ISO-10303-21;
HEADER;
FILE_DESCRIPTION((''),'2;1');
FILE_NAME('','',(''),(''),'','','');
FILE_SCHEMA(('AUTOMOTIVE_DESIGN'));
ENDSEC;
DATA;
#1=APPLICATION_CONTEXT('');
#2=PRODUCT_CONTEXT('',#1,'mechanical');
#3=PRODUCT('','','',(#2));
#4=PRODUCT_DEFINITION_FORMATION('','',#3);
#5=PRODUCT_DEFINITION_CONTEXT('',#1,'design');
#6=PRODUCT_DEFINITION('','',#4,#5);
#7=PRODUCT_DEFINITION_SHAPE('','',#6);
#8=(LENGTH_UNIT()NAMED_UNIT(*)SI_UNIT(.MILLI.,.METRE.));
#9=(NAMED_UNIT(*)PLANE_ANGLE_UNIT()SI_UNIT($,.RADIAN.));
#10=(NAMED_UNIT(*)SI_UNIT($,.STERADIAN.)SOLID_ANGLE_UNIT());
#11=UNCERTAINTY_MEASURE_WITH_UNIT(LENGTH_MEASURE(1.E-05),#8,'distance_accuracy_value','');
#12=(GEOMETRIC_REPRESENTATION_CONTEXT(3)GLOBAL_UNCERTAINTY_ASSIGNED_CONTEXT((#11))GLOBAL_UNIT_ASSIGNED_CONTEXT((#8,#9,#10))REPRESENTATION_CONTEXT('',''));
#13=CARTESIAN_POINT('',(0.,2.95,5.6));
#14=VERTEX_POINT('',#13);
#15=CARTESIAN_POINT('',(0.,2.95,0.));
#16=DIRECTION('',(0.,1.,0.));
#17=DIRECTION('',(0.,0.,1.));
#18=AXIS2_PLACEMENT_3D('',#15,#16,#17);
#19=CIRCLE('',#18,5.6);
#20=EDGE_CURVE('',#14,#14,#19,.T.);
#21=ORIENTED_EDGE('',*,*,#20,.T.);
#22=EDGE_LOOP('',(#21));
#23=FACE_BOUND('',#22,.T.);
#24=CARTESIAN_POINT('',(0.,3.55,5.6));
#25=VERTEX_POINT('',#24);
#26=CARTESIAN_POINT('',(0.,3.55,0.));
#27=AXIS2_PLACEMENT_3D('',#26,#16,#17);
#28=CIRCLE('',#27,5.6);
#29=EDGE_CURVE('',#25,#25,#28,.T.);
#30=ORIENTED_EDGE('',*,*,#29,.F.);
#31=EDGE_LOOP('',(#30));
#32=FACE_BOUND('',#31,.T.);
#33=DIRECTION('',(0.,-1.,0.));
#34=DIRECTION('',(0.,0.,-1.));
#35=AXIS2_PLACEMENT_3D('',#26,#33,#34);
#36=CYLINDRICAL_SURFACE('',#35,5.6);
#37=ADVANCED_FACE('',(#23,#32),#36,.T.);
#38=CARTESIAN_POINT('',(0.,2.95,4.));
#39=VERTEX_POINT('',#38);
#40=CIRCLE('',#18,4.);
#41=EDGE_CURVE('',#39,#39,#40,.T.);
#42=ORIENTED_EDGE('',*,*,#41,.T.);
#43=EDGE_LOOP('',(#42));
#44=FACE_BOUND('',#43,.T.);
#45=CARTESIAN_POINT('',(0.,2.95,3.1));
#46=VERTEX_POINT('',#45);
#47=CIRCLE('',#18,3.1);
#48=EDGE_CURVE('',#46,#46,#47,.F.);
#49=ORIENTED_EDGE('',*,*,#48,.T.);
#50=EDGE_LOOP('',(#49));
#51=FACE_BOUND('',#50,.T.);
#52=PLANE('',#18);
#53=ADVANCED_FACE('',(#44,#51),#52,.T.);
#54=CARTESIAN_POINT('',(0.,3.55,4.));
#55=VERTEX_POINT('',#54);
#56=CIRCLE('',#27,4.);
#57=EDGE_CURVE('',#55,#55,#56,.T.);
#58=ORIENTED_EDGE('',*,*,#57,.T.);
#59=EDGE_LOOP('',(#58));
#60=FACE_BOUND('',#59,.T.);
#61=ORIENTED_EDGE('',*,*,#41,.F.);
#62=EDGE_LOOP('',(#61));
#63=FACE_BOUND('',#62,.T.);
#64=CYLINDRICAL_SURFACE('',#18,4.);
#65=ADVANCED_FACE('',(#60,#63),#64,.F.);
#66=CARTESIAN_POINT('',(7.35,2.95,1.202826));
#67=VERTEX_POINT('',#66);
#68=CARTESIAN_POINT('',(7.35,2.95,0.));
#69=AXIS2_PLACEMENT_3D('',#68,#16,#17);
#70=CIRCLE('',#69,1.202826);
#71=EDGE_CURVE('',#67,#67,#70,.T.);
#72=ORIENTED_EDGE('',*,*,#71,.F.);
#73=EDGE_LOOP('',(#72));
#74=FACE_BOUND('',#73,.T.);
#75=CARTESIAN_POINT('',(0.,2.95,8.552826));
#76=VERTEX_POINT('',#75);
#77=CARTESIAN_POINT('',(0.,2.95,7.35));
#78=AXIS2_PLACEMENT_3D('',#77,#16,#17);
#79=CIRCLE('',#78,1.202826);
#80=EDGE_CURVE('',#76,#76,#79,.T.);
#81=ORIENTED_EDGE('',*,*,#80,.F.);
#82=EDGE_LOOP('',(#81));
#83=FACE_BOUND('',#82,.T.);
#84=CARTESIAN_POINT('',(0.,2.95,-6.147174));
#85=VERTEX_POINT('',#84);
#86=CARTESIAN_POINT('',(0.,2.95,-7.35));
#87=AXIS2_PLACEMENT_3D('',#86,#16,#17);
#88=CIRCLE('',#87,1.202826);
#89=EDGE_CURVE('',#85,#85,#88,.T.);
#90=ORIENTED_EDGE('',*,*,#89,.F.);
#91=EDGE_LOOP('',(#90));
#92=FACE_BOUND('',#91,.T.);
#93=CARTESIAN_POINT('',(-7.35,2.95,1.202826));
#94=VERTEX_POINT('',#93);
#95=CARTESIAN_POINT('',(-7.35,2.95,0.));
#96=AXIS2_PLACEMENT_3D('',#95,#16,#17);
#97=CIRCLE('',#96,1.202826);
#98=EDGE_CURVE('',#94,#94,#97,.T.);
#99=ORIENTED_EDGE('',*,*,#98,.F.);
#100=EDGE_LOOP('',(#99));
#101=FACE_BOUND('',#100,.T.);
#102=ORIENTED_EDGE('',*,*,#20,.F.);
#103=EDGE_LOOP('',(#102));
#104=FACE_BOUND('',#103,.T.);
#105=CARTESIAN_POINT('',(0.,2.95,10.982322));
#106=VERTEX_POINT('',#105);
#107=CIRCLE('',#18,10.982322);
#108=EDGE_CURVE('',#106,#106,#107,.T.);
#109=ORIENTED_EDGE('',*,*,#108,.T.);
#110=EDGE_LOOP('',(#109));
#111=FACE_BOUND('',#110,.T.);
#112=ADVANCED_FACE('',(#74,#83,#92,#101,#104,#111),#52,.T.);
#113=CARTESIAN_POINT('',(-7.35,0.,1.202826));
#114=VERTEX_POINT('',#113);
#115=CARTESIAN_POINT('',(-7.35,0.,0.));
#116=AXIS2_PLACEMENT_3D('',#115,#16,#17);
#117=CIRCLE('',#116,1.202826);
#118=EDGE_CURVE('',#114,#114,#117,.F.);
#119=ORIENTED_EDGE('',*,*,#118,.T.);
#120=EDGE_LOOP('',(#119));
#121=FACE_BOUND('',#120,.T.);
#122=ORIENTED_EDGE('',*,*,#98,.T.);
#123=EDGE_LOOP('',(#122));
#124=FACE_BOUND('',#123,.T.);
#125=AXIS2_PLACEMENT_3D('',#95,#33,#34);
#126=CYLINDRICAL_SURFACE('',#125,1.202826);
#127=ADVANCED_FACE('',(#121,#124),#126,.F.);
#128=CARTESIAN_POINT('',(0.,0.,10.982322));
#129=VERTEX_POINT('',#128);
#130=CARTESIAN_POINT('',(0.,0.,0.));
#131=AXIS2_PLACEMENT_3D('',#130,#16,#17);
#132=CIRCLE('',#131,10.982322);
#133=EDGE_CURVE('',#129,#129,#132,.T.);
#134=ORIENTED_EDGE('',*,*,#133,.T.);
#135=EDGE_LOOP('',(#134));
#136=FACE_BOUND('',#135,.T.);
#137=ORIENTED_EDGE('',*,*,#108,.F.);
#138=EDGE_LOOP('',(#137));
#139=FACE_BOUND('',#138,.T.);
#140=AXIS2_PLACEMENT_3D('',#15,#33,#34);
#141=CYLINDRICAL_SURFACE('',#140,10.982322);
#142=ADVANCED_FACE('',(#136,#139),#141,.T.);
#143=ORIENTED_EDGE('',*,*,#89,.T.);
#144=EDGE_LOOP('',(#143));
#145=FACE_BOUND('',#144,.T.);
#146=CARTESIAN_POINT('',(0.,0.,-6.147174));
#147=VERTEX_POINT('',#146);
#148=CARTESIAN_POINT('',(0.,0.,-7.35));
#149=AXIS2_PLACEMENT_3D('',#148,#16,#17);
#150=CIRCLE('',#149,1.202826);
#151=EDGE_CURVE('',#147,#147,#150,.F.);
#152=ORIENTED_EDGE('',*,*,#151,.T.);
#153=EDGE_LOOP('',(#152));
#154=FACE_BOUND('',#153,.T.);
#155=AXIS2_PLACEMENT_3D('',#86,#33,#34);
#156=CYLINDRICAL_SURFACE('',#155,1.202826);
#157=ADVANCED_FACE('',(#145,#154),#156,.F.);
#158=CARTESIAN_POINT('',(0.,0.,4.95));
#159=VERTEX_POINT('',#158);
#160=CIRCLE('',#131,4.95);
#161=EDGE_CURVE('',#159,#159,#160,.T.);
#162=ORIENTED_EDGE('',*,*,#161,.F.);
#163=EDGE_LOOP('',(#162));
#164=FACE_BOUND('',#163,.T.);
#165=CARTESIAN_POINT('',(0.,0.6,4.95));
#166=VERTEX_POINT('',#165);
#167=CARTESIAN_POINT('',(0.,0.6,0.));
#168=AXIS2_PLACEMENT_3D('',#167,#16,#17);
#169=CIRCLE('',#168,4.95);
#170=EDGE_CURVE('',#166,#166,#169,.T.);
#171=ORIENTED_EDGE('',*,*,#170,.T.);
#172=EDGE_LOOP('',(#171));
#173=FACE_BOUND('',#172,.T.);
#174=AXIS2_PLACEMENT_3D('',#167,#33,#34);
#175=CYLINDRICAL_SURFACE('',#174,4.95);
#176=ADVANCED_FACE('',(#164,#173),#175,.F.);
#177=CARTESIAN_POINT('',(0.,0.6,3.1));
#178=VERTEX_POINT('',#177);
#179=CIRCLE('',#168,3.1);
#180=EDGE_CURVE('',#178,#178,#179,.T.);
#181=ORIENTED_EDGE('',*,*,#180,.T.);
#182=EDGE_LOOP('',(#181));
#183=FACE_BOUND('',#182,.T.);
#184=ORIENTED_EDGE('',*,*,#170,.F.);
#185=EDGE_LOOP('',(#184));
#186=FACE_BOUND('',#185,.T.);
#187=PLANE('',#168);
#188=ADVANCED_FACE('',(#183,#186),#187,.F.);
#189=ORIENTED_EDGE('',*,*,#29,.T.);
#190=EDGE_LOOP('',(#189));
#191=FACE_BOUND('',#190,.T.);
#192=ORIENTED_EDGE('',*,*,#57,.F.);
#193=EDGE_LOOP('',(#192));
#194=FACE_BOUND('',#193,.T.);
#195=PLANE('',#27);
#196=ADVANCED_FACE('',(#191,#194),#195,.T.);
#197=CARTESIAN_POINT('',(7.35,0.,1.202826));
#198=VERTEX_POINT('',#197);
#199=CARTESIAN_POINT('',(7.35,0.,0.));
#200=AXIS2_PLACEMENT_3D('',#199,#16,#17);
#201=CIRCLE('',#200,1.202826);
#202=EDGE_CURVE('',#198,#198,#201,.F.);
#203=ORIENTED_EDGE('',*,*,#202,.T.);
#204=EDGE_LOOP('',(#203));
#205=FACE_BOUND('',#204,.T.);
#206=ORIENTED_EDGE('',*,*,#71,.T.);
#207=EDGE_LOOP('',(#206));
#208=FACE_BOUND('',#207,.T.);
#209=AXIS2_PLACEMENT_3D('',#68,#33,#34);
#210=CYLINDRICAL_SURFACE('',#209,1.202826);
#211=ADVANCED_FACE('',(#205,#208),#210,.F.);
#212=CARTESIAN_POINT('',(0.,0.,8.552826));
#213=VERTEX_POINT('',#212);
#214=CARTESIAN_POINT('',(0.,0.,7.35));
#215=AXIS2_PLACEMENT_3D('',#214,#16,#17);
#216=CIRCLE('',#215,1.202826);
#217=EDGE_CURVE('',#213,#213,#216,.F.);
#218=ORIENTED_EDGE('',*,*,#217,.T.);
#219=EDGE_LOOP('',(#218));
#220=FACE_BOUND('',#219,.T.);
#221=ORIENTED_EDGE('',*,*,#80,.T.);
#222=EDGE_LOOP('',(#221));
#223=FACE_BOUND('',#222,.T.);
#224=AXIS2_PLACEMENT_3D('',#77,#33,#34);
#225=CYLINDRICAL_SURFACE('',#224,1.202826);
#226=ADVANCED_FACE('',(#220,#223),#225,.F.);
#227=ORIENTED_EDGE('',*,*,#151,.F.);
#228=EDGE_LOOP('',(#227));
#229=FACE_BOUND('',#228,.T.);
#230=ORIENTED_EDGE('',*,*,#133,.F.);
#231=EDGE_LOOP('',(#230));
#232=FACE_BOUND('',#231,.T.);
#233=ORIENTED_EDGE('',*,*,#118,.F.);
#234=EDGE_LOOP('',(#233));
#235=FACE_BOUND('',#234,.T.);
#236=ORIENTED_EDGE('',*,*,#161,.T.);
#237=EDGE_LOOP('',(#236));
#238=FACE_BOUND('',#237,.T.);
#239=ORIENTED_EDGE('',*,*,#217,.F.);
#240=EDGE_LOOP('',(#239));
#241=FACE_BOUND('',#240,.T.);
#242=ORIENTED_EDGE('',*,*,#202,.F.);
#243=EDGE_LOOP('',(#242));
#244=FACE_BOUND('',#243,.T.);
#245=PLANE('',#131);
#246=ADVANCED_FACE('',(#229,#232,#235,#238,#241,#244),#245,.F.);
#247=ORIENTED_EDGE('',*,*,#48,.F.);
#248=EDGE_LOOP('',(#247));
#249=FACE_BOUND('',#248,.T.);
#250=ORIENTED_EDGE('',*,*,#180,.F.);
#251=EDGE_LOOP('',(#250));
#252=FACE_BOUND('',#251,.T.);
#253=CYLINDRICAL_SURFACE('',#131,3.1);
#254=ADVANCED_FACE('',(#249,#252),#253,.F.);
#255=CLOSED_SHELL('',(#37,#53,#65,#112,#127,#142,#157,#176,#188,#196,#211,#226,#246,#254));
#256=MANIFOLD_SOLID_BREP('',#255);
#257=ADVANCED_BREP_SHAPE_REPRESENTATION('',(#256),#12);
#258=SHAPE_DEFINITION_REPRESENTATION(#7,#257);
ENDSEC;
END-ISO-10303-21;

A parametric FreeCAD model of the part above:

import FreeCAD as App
import Part
import Sketcher
Q = App.Units.Quantity

doc = App.newDocument("Part")
body = doc.addObject("PartDesign::Body", "Body")

# Sketch on XZ plane
sketch1 = doc.addObject("Sketcher::SketchObject", "Sketch")
body.addObject(sketch1)
sketch1.AttachmentSupport = (doc.XZ_Plane, [""])
sketch1.MapMode = "FlatFace"
sketch1.addGeometry(Part.Circle(App.Vector(0, 0, 0), App.Vector(0, 0, 1), 10.982322), False)
sketch1.addConstraint([
    Sketcher.Constraint("Coincident", 0, 3, -1, 1),
    Sketcher.Constraint("Diameter", 0, Q("21.964644 mm")),
])
pad1 = doc.addObject("PartDesign::Pad", "Pad")
body.addObject(pad1)
pad1.Profile = sketch1
pad1.Length = 2.95
pad1.Reversed = True

# Sketch on XZ plane
sketch2 = doc.addObject("Sketcher::SketchObject", "Sketch001")
body.addObject(sketch2)
sketch2.AttachmentSupport = (doc.XZ_Plane, [""])
sketch2.MapMode = "FlatFace"
sketch2.addGeometry([
    Part.Circle(App.Vector(0, 0, 0), App.Vector(0, 0, 1), 3),  # 0
    Part.Circle(App.Vector(-7.35, 0, 0), App.Vector(0, 0, 1), 1.202826),  # 1
    Part.Circle(App.Vector(0, -7.35, 0), App.Vector(0, 0, 1), 1.202826),  # 2
    Part.Circle(App.Vector(7.35, 0, 0), App.Vector(0, 0, 1), 1.202826),  # 3
    Part.Circle(App.Vector(0, 7.35, 0), App.Vector(0, 0, 1), 1.202826),  # 4
], False)
sketch2.addConstraint([
    Sketcher.Constraint("Coincident", 0, 3, -1, 1),
    Sketcher.Constraint("Equal", 1, 2),
    Sketcher.Constraint("Equal", 2, 3),
    Sketcher.Constraint("Equal", 3, 4),
    Sketcher.Constraint("Symmetric", 1, 3, 3, 3, -1, 1),
    Sketcher.Constraint("Symmetric", 2, 3, 4, 3, -1, 1),
    Sketcher.Constraint("PointOnObject", 1, 3, -1),
    Sketcher.Constraint("PointOnObject", 2, 3, -2),
    Sketcher.Constraint("Diameter", 0, Q("6 mm")),
    Sketcher.Constraint("DistanceX", 1, 3, 3, 3, Q("14.7 mm")),
    Sketcher.Constraint("DistanceY", 2, 3, 4, 3, Q("14.7 mm")),
    Sketcher.Constraint("Diameter", 1, Q("2.405651 mm")),
])
pocket1 = doc.addObject("PartDesign::Pocket", "Pocket")
body.addObject(pocket1)
pocket1.Profile = sketch2
pocket1.Type = "ThroughAll"
pocket1.Midplane = True

# Sketch on XZ plane
sketch3 = doc.addObject("Sketcher::SketchObject", "Sketch002")
body.addObject(sketch3)
sketch3.AttachmentSupport = (doc.XZ_Plane, [""])
sketch3.MapMode = "FlatFace"
sketch3.addGeometry(Part.Circle(App.Vector(0, 0, 0), App.Vector(0, 0, 1), 4.95), False)
sketch3.addConstraint([
    Sketcher.Constraint("Coincident", 0, 3, -1, 1),
    Sketcher.Constraint("Diameter", 0, Q("9.9 mm")),
])
pocket2 = doc.addObject("PartDesign::Pocket", "Pocket001")
body.addObject(pocket2)
pocket2.Profile = sketch3
pocket2.Length = 0.6

# Sketch on XZ plane
sketch4 = doc.addObject("Sketcher::SketchObject", "Sketch003")
body.addObject(sketch4)
sketch4.AttachmentSupport = (doc.XZ_Plane, [""])
sketch4.MapMode = "FlatFace"
sketch4.AttachmentOffset = App.Placement(App.Vector(0, 0, -2.95), App.Rotation())
sketch4.addGeometry(Part.Circle(App.Vector(0, 0, 0), App.Vector(0, 0, 1), 5.6), False)
sketch4.addConstraint([
    Sketcher.Constraint("Coincident", 0, 3, -1, 1),
    Sketcher.Constraint("Diameter", 0, Q("11.2 mm")),
])
pad2 = doc.addObject("PartDesign::Pad", "Pad001")
body.addObject(pad2)
pad2.Profile = sketch4
pad2.Length = 0.6
pad2.Reversed = True

# Sketch on XZ plane
sketch5 = doc.addObject("Sketcher::SketchObject", "Sketch004")
body.addObject(sketch5)
sketch5.AttachmentSupport = (doc.XZ_Plane, [""])
sketch5.MapMode = "FlatFace"
sketch5.AttachmentOffset = App.Placement(App.Vector(0, 0, -3.55), App.Rotation())
sketch5.addGeometry(Part.Circle(App.Vector(0, 0, 0), App.Vector(0, 0, 1), 3.1), False)
sketch5.addConstraint([
    Sketcher.Constraint("Coincident", 0, 3, -1, 1),
    Sketcher.Constraint("Diameter", 0, Q("6.2 mm")),
])
pocket3 = doc.addObject("PartDesign::Pocket", "Pocket002")
body.addObject(pocket3)
pocket3.Profile = sketch5
pocket3.Type = "ThroughAll"
pocket3.Reversed = True

# Sketch on XZ plane
sketch6 = doc.addObject("Sketcher::SketchObject", "Sketch005")
body.addObject(sketch6)
sketch6.AttachmentSupport = (doc.XZ_Plane, [""])
sketch6.MapMode = "FlatFace"
sketch6.AttachmentOffset = App.Placement(App.Vector(0, 0, -3.55), App.Rotation())
sketch6.addGeometry(Part.Circle(App.Vector(0, 0, 0), App.Vector(0, 0, 1), 4), False)
sketch6.addConstraint([
    Sketcher.Constraint("Coincident", 0, 3, -1, 1),
    Sketcher.Constraint("Diameter", 0, Q("8 mm")),
])
pocket4 = doc.addObject("PartDesign::Pocket", "Pocket003")
body.addObject(pocket4)
pocket4.Profile = sketch6
pocket4.Length = 0.6
pocket4.Reversed = True

doc.recompute()
